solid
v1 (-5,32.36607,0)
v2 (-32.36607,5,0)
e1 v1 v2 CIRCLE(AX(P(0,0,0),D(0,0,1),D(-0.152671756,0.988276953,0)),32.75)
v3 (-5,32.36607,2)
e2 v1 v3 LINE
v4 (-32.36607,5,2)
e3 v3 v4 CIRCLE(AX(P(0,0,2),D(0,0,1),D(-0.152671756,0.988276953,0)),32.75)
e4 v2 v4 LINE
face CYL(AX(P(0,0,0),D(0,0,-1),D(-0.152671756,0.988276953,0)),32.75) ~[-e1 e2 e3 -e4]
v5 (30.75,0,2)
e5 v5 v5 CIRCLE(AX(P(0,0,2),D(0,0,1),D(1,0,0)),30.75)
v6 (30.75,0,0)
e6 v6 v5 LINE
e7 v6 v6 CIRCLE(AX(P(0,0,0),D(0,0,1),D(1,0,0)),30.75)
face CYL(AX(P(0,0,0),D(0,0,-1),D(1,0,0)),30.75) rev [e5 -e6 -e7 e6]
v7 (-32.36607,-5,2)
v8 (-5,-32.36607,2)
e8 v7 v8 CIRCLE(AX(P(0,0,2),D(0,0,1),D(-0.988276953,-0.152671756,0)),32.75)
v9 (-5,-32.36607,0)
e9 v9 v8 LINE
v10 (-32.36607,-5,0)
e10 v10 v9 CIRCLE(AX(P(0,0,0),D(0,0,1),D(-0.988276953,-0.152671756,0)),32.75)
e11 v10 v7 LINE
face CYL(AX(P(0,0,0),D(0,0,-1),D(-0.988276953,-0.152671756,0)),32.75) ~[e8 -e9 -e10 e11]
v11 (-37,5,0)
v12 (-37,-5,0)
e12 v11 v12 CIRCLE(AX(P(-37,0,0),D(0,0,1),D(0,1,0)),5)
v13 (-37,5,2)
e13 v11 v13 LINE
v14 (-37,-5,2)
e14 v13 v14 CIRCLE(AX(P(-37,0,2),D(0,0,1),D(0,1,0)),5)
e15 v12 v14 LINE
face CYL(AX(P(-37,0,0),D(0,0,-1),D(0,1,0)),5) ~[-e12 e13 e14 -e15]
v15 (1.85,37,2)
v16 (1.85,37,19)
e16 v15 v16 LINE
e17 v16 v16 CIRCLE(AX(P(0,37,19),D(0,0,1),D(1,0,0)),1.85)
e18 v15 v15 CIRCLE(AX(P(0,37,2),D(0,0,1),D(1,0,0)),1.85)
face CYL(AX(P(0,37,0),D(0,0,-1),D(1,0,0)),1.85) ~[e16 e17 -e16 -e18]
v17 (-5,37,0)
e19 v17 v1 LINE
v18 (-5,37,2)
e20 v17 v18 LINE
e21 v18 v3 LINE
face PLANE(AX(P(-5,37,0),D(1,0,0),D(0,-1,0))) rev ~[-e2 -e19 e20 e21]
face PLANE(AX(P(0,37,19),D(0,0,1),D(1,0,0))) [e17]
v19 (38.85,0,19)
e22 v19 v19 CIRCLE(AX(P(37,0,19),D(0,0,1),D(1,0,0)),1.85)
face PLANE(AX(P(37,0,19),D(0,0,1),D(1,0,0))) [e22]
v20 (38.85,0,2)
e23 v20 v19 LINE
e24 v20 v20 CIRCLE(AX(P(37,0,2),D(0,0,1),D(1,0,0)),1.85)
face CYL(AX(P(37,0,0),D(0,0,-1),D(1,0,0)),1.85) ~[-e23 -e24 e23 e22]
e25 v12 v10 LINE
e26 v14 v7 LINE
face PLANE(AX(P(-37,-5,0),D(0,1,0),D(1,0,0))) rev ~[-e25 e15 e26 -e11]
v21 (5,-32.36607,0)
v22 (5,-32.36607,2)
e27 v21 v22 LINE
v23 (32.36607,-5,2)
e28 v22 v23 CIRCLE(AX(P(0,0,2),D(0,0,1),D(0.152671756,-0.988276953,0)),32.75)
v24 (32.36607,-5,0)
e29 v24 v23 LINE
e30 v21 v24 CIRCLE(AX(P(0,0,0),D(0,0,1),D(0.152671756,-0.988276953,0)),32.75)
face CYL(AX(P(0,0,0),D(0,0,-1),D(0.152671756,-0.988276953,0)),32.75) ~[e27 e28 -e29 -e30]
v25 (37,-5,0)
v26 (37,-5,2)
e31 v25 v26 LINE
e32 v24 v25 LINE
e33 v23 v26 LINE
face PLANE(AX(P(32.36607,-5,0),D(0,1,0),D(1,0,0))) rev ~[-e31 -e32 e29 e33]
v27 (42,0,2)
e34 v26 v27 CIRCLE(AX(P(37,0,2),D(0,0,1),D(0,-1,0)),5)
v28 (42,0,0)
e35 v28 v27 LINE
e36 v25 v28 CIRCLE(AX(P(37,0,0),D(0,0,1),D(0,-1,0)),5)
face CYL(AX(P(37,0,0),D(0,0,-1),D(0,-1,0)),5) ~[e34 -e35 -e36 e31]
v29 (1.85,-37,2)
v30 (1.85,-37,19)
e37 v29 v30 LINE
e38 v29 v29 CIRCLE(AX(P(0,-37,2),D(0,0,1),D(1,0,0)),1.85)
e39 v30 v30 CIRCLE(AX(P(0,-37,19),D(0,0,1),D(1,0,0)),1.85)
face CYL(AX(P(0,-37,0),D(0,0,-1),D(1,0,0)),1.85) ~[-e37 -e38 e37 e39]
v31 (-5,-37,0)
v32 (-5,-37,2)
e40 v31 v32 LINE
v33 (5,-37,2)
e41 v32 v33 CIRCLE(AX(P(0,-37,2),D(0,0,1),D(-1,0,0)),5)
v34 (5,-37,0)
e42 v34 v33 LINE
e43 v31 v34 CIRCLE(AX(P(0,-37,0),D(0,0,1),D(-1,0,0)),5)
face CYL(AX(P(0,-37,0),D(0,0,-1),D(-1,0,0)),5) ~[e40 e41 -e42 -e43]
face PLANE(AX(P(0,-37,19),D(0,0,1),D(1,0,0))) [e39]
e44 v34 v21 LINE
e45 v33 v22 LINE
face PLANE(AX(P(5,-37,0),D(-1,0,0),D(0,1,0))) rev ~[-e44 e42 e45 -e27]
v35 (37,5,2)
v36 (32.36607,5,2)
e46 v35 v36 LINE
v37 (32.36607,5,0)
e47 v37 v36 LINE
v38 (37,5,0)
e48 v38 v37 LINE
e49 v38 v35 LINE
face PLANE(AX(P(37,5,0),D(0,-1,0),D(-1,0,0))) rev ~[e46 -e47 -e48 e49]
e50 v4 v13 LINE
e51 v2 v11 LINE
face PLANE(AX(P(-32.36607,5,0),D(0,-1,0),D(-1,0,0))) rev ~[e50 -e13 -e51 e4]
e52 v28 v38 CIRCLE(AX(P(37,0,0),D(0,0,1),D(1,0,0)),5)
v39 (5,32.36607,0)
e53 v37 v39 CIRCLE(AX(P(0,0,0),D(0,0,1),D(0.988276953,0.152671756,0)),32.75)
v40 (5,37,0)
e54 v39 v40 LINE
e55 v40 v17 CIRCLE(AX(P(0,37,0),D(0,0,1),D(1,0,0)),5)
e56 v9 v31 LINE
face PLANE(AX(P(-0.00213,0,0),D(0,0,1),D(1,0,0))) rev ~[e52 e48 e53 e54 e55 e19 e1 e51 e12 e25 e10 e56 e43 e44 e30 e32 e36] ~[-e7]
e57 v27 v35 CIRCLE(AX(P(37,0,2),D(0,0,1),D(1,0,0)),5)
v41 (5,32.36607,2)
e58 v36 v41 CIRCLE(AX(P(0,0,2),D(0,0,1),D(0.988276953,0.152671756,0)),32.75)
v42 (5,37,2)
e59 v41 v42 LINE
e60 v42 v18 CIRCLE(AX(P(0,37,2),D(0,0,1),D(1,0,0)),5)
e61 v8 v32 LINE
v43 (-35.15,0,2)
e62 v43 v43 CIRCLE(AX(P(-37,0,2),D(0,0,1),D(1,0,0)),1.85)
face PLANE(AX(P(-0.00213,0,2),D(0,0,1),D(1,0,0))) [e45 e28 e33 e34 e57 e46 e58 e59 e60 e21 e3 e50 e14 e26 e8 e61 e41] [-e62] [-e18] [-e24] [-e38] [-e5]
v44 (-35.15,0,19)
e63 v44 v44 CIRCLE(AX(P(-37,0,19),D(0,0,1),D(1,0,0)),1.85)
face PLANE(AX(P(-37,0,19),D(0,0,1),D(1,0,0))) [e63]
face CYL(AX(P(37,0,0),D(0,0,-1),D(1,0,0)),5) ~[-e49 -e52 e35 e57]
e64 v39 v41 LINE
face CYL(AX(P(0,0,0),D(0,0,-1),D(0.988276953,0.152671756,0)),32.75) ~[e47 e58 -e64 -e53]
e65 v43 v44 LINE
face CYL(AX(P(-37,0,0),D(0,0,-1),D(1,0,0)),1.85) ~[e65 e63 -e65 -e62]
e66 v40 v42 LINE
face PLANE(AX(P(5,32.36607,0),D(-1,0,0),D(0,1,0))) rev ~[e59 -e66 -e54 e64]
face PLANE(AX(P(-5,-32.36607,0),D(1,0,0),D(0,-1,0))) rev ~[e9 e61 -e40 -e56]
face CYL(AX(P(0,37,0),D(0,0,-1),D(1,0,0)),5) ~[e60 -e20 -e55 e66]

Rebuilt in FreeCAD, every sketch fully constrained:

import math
import FreeCAD as App
import Part
import Sketcher
from FreeCAD import Vector
Q = App.Units.Quantity

doc = App.newDocument("Part")
body = doc.addObject("PartDesign::Body", "Body")

# Sketch on XY plane
sketch1 = body.newObject("Sketcher::SketchObject", "Sketch")
sketch1.AttachmentSupport = (doc.getObject("XY_Plane"), [""])
sketch1.MapMode = "FlatFace"
sketch1.addGeometry([
    Part.ArcOfCircle(Part.Circle(Vector(-37, 0, 0), Vector(0, 0, 1), 5), math.radians(90), math.radians(270)),  # 0
    Part.LineSegment(Vector(-37, -5, 0), Vector(-32.4, -5, 0)),  # 1
    Part.ArcOfCircle(Part.Circle(Vector(0, 0, 0), Vector(0, 0, 1), 32.8), math.radians(-171), math.radians(-99)),  # 2
    Part.LineSegment(Vector(-5, -32.4, 0), Vector(-5, -37, 0)),  # 3
    Part.ArcOfCircle(Part.Circle(Vector(0, -37, 0), Vector(0, 0, 1), 5), math.radians(180), math.radians(360)),  # 4
    Part.LineSegment(Vector(5, -37, 0), Vector(5, -32.4, 0)),  # 5
    Part.ArcOfCircle(Part.Circle(Vector(0, 0, 0), Vector(0, 0, 1), 32.8), math.radians(-81), math.radians(-9)),  # 6
    Part.LineSegment(Vector(32.4, -5, 0), Vector(37, -5, 0)),  # 7
    Part.ArcOfCircle(Part.Circle(Vector(37, 0, 0), Vector(0, 0, 1), 5), math.radians(-90), math.radians(0)),  # 8
    Part.ArcOfCircle(Part.Circle(Vector(37, 0, 0), Vector(0, 0, 1), 5), math.radians(0), math.radians(90)),  # 9
    Part.LineSegment(Vector(37, 5, 0), Vector(32.4, 5, 0)),  # 10
    Part.ArcOfCircle(Part.Circle(Vector(0, 0, 0), Vector(0, 0, 1), 32.8), math.radians(9), math.radians(81)),  # 11
    Part.LineSegment(Vector(5, 32.4, 0), Vector(5, 37, 0)),  # 12
    Part.ArcOfCircle(Part.Circle(Vector(0, 37, 0), Vector(0, 0, 1), 5), math.radians(0), math.radians(180)),  # 13
    Part.LineSegment(Vector(-5, 37, 0), Vector(-5, 32.4, 0)),  # 14
    Part.ArcOfCircle(Part.Circle(Vector(0, 0, 0), Vector(0, 0, 1), 32.8), math.radians(99), math.radians(171)),  # 15
    Part.LineSegment(Vector(-32.4, 5, 0), Vector(-37, 5, 0)),  # 16
    Part.Circle(Vector(0, -37, 0), Vector(0, 0, 1), 1.9),  # 17
    Part.Circle(Vector(-37, 0, 0), Vector(0, 0, 1), 1.9),  # 18
    Part.Circle(Vector(0, 0, 0), Vector(0, 0, 1), 30.8),  # 19
    Part.Circle(Vector(37, 0, 0), Vector(0, 0, 1), 1.9),  # 20
    Part.Circle(Vector(0, 37, 0), Vector(0, 0, 1), 1.9),  # 21
], False)
sketch1.addConstraint([
    Sketcher.Constraint("Tangent", 0, 2, 1, 1),
    Sketcher.Constraint("Coincident", 1, 2, 2, 1),
    Sketcher.Constraint("Coincident", 2, 2, 3, 1),
    Sketcher.Constraint("Tangent", 3, 2, 4, 1),
    Sketcher.Constraint("Tangent", 4, 2, 5, 1),
    Sketcher.Constraint("Coincident", 5, 2, 6, 1),
    Sketcher.Constraint("Coincident", 6, 2, 7, 1),
    Sketcher.Constraint("Tangent", 7, 2, 8, 1),
    Sketcher.Constraint("Tangent", 8, 2, 9, 1),
    Sketcher.Constraint("Tangent", 9, 2, 10, 1),
    Sketcher.Constraint("Coincident", 10, 2, 11, 1),
    Sketcher.Constraint("Coincident", 11, 2, 12, 1),
    Sketcher.Constraint("Tangent", 12, 2, 13, 1),
    Sketcher.Constraint("Tangent", 13, 2, 14, 1),
    Sketcher.Constraint("Coincident", 14, 2, 15, 1),
    Sketcher.Constraint("Coincident", 15, 2, 16, 1),
    Sketcher.Constraint("Tangent", 16, 2, 0, 1),
    Sketcher.Constraint("Horizontal", 1),
    Sketcher.Constraint("Vertical", 3),
    Sketcher.Constraint("Vertical", 5),
    Sketcher.Constraint("Horizontal", 7),
    Sketcher.Constraint("Horizontal", 10),
    Sketcher.Constraint("Vertical", 12),
    Sketcher.Constraint("Vertical", 14),
    Sketcher.Constraint("Horizontal", 16),
    Sketcher.Constraint("Coincident", 2, 3, -1, 1),
    Sketcher.Constraint("Coincident", 6, 3, -1, 1),
    Sketcher.Constraint("Coincident", 11, 3, -1, 1),
    Sketcher.Constraint("Coincident", 15, 3, -1, 1),
    Sketcher.Constraint("Coincident", 19, 3, -1, 1),
    Sketcher.Constraint("Coincident", 17, 3, 4, 3),
    Sketcher.Constraint("Coincident", 18, 3, 0, 3),
    Sketcher.Constraint("Coincident", 20, 3, 8, 3),
    Sketcher.Constraint("Coincident", 21, 3, 13, 3),
    Sketcher.Constraint("Equal", 0, 4),
    Sketcher.Constraint("Equal", 2, 6),
    Sketcher.Constraint("Equal", 4, 8),
    Sketcher.Constraint("Equal", 8, 9),
    Sketcher.Constraint("Equal", 6, 11),
    Sketcher.Constraint("Equal", 9, 13),
    Sketcher.Constraint("Equal", 11, 15),
    Sketcher.Constraint("Equal", 17, 18),
    Sketcher.Constraint("Equal", 18, 20),
    Sketcher.Constraint("Equal", 20, 21),
    Sketcher.Constraint("Symmetric", 0, 3, 8, 3, -1, 1),
    Sketcher.Constraint("Symmetric", 4, 3, 13, 3, -1, 1),
    Sketcher.Constraint("PointOnObject", 0, 3, -1),
    Sketcher.Constraint("PointOnObject", 4, 3, -2),
    Sketcher.Constraint("PointOnObject", 8, 2, -1),
    Sketcher.Constraint("Equal", 16, 3),
    Sketcher.Constraint("Radius", 0, Q("5 mm")),
    Sketcher.Constraint("Diameter", 17, Q("3.7 mm")),
    Sketcher.Constraint("Diameter", 19, Q("61.5 mm")),
    Sketcher.Constraint("Radius", 2, Q("32.75 mm")),
    Sketcher.Constraint("DistanceX", 0, 3, -1, 1, Q("37 mm")),
])
pad1 = body.newObject("PartDesign::Pad", "Pad")
pad1.Profile = sketch1
pad1.Length = 2

# Sketch on XY plane
sketch2 = body.newObject("Sketcher::SketchObject", "Sketch001")
sketch2.AttachmentSupport = (doc.getObject("XY_Plane"), [""])
sketch2.MapMode = "FlatFace"
sketch2.addGeometry([
    Part.Circle(Vector(0, 37, 0), Vector(0, 0, 1), 1.9),
    Part.Circle(Vector(-37, 0, 0), Vector(0, 0, 1), 1.9),
    Part.Circle(Vector(0, -37, 0), Vector(0, 0, 1), 1.9),
    Part.Circle(Vector(37, 0, 0), Vector(0, 0, 1), 1.9),
], False)
sketch2.addConstraint([
    Sketcher.Constraint("Equal", 0, 1),
    Sketcher.Constraint("Equal", 1, 2),
    Sketcher.Constraint("Equal", 2, 3),
    Sketcher.Constraint("Symmetric", 0, 3, 2, 3, -1, 1),
    Sketcher.Constraint("Symmetric", 1, 3, 3, 3, -1, 1),
    Sketcher.Constraint("PointOnObject", 0, 3, -2),
    Sketcher.Constraint("PointOnObject", 1, 3, -1),
    Sketcher.Constraint("Diameter", 0, Q("3.7 mm")),
    Sketcher.Constraint("DistanceY", -1, 1, 0, 3, Q("37 mm")),
    Sketcher.Constraint("DistanceX", 1, 3, -1, 1, Q("37 mm")),
])
pad2 = body.newObject("PartDesign::Pad", "Pad001")
pad2.Profile = sketch2
pad2.Length = 19

doc.recompute()
